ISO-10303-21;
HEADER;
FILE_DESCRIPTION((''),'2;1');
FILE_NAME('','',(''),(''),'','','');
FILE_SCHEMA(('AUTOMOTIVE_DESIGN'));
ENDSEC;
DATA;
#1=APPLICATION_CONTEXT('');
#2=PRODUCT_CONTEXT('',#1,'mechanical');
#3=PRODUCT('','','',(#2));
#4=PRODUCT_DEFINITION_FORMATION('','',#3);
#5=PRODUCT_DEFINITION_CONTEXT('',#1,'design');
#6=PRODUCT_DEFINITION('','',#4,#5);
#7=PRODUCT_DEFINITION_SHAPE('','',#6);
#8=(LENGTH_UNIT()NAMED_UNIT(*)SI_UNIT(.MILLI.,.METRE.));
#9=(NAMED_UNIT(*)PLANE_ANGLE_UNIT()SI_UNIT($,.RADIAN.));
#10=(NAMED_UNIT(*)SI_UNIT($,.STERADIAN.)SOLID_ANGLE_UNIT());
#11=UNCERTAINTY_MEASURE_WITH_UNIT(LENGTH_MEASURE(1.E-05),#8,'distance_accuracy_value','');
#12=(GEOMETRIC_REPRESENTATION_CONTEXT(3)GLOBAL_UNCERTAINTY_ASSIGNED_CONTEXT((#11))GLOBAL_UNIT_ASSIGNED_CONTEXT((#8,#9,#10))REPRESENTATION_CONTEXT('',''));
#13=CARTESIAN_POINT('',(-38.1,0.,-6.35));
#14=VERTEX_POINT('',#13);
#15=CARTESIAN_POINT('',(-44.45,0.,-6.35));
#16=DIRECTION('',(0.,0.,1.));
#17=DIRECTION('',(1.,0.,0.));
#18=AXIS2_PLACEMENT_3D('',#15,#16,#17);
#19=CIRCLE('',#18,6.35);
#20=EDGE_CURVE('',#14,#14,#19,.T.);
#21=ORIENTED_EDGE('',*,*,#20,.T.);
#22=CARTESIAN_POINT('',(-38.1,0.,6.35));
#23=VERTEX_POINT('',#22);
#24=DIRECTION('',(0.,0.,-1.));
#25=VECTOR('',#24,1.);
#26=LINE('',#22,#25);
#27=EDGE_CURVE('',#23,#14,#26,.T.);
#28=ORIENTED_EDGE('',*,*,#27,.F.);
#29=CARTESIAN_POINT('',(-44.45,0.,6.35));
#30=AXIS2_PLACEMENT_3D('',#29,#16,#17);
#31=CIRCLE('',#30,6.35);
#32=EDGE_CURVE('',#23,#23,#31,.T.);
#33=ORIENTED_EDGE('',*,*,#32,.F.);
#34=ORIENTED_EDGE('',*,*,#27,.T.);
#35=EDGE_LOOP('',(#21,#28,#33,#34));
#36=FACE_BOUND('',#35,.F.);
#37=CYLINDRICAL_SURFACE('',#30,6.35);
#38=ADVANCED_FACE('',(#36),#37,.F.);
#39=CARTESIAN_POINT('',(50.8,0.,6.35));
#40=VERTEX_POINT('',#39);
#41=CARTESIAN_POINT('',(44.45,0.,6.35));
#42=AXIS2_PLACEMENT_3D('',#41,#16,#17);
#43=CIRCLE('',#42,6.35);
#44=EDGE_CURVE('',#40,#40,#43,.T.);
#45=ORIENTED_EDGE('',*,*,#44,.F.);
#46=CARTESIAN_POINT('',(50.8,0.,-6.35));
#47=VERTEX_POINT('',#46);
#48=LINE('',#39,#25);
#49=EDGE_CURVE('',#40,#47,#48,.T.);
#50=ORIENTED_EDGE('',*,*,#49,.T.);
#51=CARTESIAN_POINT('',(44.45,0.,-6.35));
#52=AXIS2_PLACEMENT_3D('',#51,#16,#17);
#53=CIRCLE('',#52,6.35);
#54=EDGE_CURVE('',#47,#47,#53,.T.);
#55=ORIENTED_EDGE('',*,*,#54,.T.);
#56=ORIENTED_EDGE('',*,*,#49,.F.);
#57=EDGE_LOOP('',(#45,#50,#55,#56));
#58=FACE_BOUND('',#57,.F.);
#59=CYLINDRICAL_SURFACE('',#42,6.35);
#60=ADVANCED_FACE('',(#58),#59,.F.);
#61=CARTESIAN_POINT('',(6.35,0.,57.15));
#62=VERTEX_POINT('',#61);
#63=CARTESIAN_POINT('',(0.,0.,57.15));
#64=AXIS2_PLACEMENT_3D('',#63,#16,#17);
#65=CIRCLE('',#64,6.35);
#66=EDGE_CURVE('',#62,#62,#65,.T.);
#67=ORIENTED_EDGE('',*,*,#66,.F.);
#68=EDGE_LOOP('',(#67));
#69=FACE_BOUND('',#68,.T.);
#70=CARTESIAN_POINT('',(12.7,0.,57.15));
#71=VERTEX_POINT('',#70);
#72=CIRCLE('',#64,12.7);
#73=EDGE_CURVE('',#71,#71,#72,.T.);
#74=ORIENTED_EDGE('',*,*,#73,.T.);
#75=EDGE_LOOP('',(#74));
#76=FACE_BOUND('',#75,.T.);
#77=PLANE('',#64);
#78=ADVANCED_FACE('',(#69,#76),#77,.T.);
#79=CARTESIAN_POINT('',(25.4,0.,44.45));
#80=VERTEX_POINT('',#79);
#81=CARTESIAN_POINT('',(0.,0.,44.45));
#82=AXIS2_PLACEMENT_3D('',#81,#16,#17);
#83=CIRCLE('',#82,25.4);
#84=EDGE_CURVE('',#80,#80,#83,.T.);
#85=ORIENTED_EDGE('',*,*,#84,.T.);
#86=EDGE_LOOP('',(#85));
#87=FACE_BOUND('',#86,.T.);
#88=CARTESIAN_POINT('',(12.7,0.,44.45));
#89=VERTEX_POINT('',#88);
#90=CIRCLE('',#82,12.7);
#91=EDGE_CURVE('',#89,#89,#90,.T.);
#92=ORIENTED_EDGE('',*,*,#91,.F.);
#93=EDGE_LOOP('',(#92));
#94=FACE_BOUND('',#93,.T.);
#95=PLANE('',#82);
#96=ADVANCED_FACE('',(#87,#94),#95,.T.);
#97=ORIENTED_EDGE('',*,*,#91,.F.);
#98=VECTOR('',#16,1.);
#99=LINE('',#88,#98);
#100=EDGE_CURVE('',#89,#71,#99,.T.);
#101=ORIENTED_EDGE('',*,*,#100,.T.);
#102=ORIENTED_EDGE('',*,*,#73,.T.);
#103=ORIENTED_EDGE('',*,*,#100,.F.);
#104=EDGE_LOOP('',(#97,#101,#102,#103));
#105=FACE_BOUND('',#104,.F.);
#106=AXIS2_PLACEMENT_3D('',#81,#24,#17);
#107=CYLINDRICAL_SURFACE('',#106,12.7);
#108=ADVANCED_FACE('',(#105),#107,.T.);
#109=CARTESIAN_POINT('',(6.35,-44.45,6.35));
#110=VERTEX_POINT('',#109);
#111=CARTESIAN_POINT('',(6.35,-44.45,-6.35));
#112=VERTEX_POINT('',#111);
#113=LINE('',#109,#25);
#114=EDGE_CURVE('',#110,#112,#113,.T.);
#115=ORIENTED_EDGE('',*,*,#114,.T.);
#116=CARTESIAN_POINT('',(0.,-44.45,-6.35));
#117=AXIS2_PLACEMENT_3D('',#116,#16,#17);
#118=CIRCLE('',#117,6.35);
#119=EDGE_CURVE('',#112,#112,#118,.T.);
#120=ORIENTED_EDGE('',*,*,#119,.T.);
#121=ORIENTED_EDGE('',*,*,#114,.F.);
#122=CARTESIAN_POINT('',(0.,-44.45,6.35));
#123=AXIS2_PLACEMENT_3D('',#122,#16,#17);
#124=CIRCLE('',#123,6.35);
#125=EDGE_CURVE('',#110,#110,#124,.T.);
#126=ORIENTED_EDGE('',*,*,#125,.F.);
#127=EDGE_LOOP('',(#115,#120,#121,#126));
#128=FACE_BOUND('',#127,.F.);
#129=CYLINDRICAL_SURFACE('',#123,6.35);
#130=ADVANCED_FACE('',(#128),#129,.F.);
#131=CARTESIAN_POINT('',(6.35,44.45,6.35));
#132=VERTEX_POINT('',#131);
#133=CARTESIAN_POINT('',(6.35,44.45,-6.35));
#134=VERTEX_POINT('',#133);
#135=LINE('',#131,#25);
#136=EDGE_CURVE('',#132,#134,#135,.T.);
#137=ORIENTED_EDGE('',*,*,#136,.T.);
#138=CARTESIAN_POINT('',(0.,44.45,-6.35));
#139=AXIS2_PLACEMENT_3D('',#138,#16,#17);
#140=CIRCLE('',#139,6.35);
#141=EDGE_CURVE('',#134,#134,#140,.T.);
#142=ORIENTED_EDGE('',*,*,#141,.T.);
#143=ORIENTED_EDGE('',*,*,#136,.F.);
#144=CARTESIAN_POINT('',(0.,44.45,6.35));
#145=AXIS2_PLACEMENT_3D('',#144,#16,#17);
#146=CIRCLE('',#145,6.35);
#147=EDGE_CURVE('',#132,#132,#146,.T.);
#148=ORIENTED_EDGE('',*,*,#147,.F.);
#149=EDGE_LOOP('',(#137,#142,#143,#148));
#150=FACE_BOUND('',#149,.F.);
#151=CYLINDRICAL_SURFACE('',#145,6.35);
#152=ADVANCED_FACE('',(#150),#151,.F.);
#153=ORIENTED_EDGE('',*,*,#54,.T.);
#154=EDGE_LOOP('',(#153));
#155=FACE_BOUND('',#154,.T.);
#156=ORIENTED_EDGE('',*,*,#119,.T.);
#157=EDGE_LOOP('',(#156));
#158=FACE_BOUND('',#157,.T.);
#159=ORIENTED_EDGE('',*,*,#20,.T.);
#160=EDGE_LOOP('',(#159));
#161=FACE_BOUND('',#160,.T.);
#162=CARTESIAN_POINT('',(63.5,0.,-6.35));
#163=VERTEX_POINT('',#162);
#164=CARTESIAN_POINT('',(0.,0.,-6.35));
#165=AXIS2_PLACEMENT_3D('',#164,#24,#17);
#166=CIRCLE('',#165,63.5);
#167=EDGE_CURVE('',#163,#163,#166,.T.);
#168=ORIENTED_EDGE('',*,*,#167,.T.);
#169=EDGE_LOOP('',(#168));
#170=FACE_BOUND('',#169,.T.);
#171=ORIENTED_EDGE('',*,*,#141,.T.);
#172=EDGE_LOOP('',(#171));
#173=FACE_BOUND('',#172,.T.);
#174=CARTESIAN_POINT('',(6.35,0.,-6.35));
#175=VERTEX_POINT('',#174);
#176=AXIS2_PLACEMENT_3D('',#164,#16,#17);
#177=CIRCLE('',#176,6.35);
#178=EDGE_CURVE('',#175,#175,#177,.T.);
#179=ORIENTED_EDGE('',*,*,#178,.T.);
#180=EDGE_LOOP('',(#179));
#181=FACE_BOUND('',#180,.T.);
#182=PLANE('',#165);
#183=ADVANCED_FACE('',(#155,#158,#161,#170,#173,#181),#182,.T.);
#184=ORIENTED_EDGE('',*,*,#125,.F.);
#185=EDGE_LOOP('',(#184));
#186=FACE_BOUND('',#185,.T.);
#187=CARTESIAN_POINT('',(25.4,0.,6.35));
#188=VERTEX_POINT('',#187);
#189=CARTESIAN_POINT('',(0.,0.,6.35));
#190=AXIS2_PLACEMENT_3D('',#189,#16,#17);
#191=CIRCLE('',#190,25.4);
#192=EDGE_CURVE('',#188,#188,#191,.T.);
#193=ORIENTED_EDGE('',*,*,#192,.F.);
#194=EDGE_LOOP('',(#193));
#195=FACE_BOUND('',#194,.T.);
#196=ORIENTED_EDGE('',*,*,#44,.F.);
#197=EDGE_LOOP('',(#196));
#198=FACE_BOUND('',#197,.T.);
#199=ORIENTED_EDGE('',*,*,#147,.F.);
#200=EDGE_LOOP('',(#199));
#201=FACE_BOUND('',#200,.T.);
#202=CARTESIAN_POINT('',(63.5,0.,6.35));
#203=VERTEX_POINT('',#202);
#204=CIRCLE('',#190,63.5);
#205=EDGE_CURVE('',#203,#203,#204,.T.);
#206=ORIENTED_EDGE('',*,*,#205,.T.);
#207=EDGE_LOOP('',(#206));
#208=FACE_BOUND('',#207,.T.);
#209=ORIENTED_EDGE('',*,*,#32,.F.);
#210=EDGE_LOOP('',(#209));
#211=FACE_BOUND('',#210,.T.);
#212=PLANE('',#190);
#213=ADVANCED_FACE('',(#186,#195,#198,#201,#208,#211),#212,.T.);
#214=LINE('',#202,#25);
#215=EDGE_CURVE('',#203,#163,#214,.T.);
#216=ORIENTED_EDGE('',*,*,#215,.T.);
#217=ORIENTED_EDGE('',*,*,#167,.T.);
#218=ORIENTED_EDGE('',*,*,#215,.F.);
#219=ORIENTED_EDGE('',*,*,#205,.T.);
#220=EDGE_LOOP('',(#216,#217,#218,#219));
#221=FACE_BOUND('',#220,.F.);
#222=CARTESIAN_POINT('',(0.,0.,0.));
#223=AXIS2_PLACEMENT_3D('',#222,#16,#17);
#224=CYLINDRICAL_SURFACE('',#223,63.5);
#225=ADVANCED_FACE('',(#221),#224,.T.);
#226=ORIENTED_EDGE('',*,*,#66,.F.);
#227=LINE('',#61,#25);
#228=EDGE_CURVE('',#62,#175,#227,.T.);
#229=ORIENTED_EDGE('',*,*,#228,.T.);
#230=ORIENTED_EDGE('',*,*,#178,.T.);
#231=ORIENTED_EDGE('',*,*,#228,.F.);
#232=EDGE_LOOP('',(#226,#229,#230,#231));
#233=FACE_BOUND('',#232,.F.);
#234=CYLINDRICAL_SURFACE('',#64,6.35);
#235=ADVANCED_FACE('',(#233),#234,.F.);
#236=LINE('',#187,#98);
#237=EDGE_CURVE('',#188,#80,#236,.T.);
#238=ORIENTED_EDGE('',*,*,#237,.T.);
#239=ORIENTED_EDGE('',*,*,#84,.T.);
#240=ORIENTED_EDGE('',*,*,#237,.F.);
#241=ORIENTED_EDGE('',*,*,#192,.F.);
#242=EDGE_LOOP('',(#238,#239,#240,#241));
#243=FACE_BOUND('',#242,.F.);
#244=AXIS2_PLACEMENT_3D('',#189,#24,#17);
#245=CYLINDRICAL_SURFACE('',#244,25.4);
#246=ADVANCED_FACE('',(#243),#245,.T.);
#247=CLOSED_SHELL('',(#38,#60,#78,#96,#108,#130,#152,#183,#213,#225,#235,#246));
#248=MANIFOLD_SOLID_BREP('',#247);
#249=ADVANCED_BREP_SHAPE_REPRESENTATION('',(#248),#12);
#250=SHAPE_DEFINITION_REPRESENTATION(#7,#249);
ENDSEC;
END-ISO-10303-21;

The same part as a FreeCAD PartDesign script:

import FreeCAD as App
import Part
import Sketcher
from FreeCAD import Vector
Q = App.Units.Quantity

doc = App.newDocument("Part")
body = doc.addObject("PartDesign::Body", "Body")

sketch1 = doc.addObject("Sketcher::SketchObject", "Sketch")
body.addObject(sketch1)
sketch1.AttachmentSupport = (doc.XY_Plane, [""])
sketch1.MapMode = "FlatFace"
sketch1.addGeometry(Part.Circle(Vector(0, 0, 0), Vector(0, 0, 1), 64), False)
sketch1.addConstraint(Sketcher.Constraint("Coincident", 0, 3, -1, 1))
sketch1.addConstraint(Sketcher.Constraint("Diameter", 0, Q("5 in")))
pad1 = doc.addObject("PartDesign::Pad", "Pad")
body.addObject(pad1)
pad1.Profile = sketch1
pad1.Length = Q("0.25 in")

sketch2 = doc.addObject("Sketcher::SketchObject", "Sketch001")
body.addObject(sketch2)
sketch2.AttachmentSupport = (doc.XY_Plane, [""])
sketch2.MapMode = "FlatFace"
sketch2.addGeometry(Part.Circle(Vector(0, 0, 0), Vector(0, 0, 1), 64), False)
sketch2.addConstraint(Sketcher.Constraint("Coincident", 0, 3, -1, 1))
sketch2.addConstraint(Sketcher.Constraint("Diameter", 0, Q("5 in")))
pad2 = doc.addObject("PartDesign::Pad", "Pad001")
body.addObject(pad2)
pad2.Profile = sketch2
pad2.Length = Q("0.25 in")
pad2.Reversed = True

sketch3 = doc.addObject("Sketcher::SketchObject", "Sketch002")
body.addObject(sketch3)
sketch3.AttachmentSupport = (doc.XY_Plane, [""])
sketch3.MapMode = "FlatFace"
sketch3.AttachmentOffset = App.Placement(Vector(0, 0, 0.25 * 25.4), App.Rotation())
sketch3.addGeometry(Part.Circle(Vector(-44, 0, 0), Vector(0, 0, 1), 6), False)
sketch3.addGeometry(Part.Circle(Vector(0, 44, 0), Vector(0, 0, 1), 6), False)
sketch3.addGeometry(Part.Circle(Vector(44, 0, 0), Vector(0, 0, 1), 6), False)
sketch3.addGeometry(Part.Circle(Vector(0, -44, 0), Vector(0, 0, 1), 6), False)
sketch3.addConstraint(Sketcher.Constraint("Equal", 0, 1))
sketch3.addConstraint(Sketcher.Constraint("Equal", 1, 2))
sketch3.addConstraint(Sketcher.Constraint("Equal", 2, 3))
sketch3.addConstraint(Sketcher.Constraint("Symmetric", 0, 3, 2, 3, -1, 1))
sketch3.addConstraint(Sketcher.Constraint("Symmetric", 1, 3, 3, 3, -1, 1))
sketch3.addConstraint(Sketcher.Constraint("PointOnObject", 0, 3, -1))
sketch3.addConstraint(Sketcher.Constraint("PointOnObject", 1, 3, -2))
sketch3.addConstraint(Sketcher.Constraint("Diameter", 0, Q("0.5 in")))
sketch3.addConstraint(Sketcher.Constraint("DistanceX", 0, 3, 2, 3, Q("3.5 in")))
sketch3.addConstraint(Sketcher.Constraint("DistanceY", 3, 3, 1, 3, Q("3.5 in")))
pocket1 = doc.addObject("PartDesign::Pocket", "Pocket")
body.addObject(pocket1)
pocket1.Profile = sketch3
pocket1.Length = Q("0.5 in")

sketch4 = doc.addObject("Sketcher::SketchObject", "Sketch003")
body.addObject(sketch4)
sketch4.AttachmentSupport = (doc.XY_Plane, [""])
sketch4.MapMode = "FlatFace"
sketch4.AttachmentOffset = App.Placement(Vector(0, 0, 0.25 * 25.4), App.Rotation())
sketch4.addGeometry(Part.Circle(Vector(0, 0, 0), Vector(0, 0, 1), 25), False)
sketch4.addConstraint(Sketcher.Constraint("Coincident", 0, 3, -1, 1))
sketch4.addConstraint(Sketcher.Constraint("Diameter", 0, Q("2 in")))
pad3 = doc.addObject("PartDesign::Pad", "Pad002")
body.addObject(pad3)
pad3.Profile = sketch4
pad3.Length = Q("1.5 in")

sketch5 = doc.addObject("Sketcher::SketchObject", "Sketch004")
body.addObject(sketch5)
sketch5.AttachmentSupport = (doc.XY_Plane, [""])
sketch5.MapMode = "FlatFace"
sketch5.AttachmentOffset = App.Placement(Vector(0, 0, 1.75 * 25.4), App.Rotation())
sketch5.addGeometry(Part.Circle(Vector(0, 0, 0), Vector(0, 0, 1), 13), False)
sketch5.addConstraint(Sketcher.Constraint("Coincident", 0, 3, -1, 1))
sketch5.addConstraint(Sketcher.Constraint("Diameter", 0, Q("1 in")))
pad4 = doc.addObject("PartDesign::Pad", "Pad003")
body.addObject(pad4)
pad4.Profile = sketch5
pad4.Length = Q("0.5 in")

sketch6 = doc.addObject("Sketcher::SketchObject", "Sketch005")
body.addObject(sketch6)
sketch6.AttachmentSupport = (doc.XY_Plane, [""])
sketch6.MapMode = "FlatFace"
sketch6.AttachmentOffset = App.Placement(Vector(0, 0, 2.25 * 25.4), App.Rotation())
sketch6.addGeometry(Part.Circle(Vector(0, 0, 0), Vector(0, 0, 1), 6), False)
sketch6.addConstraint(Sketcher.Constraint("Coincident", 0, 3, -1, 1))
sketch6.addConstraint(Sketcher.Constraint("Diameter", 0, Q("0.5 in")))
pocket2 = doc.addObject("PartDesign::Pocket", "Pocket001")
body.addObject(pocket2)
pocket2.Profile = sketch6
pocket2.Length = Q("2.5 in")

doc.recompute()
